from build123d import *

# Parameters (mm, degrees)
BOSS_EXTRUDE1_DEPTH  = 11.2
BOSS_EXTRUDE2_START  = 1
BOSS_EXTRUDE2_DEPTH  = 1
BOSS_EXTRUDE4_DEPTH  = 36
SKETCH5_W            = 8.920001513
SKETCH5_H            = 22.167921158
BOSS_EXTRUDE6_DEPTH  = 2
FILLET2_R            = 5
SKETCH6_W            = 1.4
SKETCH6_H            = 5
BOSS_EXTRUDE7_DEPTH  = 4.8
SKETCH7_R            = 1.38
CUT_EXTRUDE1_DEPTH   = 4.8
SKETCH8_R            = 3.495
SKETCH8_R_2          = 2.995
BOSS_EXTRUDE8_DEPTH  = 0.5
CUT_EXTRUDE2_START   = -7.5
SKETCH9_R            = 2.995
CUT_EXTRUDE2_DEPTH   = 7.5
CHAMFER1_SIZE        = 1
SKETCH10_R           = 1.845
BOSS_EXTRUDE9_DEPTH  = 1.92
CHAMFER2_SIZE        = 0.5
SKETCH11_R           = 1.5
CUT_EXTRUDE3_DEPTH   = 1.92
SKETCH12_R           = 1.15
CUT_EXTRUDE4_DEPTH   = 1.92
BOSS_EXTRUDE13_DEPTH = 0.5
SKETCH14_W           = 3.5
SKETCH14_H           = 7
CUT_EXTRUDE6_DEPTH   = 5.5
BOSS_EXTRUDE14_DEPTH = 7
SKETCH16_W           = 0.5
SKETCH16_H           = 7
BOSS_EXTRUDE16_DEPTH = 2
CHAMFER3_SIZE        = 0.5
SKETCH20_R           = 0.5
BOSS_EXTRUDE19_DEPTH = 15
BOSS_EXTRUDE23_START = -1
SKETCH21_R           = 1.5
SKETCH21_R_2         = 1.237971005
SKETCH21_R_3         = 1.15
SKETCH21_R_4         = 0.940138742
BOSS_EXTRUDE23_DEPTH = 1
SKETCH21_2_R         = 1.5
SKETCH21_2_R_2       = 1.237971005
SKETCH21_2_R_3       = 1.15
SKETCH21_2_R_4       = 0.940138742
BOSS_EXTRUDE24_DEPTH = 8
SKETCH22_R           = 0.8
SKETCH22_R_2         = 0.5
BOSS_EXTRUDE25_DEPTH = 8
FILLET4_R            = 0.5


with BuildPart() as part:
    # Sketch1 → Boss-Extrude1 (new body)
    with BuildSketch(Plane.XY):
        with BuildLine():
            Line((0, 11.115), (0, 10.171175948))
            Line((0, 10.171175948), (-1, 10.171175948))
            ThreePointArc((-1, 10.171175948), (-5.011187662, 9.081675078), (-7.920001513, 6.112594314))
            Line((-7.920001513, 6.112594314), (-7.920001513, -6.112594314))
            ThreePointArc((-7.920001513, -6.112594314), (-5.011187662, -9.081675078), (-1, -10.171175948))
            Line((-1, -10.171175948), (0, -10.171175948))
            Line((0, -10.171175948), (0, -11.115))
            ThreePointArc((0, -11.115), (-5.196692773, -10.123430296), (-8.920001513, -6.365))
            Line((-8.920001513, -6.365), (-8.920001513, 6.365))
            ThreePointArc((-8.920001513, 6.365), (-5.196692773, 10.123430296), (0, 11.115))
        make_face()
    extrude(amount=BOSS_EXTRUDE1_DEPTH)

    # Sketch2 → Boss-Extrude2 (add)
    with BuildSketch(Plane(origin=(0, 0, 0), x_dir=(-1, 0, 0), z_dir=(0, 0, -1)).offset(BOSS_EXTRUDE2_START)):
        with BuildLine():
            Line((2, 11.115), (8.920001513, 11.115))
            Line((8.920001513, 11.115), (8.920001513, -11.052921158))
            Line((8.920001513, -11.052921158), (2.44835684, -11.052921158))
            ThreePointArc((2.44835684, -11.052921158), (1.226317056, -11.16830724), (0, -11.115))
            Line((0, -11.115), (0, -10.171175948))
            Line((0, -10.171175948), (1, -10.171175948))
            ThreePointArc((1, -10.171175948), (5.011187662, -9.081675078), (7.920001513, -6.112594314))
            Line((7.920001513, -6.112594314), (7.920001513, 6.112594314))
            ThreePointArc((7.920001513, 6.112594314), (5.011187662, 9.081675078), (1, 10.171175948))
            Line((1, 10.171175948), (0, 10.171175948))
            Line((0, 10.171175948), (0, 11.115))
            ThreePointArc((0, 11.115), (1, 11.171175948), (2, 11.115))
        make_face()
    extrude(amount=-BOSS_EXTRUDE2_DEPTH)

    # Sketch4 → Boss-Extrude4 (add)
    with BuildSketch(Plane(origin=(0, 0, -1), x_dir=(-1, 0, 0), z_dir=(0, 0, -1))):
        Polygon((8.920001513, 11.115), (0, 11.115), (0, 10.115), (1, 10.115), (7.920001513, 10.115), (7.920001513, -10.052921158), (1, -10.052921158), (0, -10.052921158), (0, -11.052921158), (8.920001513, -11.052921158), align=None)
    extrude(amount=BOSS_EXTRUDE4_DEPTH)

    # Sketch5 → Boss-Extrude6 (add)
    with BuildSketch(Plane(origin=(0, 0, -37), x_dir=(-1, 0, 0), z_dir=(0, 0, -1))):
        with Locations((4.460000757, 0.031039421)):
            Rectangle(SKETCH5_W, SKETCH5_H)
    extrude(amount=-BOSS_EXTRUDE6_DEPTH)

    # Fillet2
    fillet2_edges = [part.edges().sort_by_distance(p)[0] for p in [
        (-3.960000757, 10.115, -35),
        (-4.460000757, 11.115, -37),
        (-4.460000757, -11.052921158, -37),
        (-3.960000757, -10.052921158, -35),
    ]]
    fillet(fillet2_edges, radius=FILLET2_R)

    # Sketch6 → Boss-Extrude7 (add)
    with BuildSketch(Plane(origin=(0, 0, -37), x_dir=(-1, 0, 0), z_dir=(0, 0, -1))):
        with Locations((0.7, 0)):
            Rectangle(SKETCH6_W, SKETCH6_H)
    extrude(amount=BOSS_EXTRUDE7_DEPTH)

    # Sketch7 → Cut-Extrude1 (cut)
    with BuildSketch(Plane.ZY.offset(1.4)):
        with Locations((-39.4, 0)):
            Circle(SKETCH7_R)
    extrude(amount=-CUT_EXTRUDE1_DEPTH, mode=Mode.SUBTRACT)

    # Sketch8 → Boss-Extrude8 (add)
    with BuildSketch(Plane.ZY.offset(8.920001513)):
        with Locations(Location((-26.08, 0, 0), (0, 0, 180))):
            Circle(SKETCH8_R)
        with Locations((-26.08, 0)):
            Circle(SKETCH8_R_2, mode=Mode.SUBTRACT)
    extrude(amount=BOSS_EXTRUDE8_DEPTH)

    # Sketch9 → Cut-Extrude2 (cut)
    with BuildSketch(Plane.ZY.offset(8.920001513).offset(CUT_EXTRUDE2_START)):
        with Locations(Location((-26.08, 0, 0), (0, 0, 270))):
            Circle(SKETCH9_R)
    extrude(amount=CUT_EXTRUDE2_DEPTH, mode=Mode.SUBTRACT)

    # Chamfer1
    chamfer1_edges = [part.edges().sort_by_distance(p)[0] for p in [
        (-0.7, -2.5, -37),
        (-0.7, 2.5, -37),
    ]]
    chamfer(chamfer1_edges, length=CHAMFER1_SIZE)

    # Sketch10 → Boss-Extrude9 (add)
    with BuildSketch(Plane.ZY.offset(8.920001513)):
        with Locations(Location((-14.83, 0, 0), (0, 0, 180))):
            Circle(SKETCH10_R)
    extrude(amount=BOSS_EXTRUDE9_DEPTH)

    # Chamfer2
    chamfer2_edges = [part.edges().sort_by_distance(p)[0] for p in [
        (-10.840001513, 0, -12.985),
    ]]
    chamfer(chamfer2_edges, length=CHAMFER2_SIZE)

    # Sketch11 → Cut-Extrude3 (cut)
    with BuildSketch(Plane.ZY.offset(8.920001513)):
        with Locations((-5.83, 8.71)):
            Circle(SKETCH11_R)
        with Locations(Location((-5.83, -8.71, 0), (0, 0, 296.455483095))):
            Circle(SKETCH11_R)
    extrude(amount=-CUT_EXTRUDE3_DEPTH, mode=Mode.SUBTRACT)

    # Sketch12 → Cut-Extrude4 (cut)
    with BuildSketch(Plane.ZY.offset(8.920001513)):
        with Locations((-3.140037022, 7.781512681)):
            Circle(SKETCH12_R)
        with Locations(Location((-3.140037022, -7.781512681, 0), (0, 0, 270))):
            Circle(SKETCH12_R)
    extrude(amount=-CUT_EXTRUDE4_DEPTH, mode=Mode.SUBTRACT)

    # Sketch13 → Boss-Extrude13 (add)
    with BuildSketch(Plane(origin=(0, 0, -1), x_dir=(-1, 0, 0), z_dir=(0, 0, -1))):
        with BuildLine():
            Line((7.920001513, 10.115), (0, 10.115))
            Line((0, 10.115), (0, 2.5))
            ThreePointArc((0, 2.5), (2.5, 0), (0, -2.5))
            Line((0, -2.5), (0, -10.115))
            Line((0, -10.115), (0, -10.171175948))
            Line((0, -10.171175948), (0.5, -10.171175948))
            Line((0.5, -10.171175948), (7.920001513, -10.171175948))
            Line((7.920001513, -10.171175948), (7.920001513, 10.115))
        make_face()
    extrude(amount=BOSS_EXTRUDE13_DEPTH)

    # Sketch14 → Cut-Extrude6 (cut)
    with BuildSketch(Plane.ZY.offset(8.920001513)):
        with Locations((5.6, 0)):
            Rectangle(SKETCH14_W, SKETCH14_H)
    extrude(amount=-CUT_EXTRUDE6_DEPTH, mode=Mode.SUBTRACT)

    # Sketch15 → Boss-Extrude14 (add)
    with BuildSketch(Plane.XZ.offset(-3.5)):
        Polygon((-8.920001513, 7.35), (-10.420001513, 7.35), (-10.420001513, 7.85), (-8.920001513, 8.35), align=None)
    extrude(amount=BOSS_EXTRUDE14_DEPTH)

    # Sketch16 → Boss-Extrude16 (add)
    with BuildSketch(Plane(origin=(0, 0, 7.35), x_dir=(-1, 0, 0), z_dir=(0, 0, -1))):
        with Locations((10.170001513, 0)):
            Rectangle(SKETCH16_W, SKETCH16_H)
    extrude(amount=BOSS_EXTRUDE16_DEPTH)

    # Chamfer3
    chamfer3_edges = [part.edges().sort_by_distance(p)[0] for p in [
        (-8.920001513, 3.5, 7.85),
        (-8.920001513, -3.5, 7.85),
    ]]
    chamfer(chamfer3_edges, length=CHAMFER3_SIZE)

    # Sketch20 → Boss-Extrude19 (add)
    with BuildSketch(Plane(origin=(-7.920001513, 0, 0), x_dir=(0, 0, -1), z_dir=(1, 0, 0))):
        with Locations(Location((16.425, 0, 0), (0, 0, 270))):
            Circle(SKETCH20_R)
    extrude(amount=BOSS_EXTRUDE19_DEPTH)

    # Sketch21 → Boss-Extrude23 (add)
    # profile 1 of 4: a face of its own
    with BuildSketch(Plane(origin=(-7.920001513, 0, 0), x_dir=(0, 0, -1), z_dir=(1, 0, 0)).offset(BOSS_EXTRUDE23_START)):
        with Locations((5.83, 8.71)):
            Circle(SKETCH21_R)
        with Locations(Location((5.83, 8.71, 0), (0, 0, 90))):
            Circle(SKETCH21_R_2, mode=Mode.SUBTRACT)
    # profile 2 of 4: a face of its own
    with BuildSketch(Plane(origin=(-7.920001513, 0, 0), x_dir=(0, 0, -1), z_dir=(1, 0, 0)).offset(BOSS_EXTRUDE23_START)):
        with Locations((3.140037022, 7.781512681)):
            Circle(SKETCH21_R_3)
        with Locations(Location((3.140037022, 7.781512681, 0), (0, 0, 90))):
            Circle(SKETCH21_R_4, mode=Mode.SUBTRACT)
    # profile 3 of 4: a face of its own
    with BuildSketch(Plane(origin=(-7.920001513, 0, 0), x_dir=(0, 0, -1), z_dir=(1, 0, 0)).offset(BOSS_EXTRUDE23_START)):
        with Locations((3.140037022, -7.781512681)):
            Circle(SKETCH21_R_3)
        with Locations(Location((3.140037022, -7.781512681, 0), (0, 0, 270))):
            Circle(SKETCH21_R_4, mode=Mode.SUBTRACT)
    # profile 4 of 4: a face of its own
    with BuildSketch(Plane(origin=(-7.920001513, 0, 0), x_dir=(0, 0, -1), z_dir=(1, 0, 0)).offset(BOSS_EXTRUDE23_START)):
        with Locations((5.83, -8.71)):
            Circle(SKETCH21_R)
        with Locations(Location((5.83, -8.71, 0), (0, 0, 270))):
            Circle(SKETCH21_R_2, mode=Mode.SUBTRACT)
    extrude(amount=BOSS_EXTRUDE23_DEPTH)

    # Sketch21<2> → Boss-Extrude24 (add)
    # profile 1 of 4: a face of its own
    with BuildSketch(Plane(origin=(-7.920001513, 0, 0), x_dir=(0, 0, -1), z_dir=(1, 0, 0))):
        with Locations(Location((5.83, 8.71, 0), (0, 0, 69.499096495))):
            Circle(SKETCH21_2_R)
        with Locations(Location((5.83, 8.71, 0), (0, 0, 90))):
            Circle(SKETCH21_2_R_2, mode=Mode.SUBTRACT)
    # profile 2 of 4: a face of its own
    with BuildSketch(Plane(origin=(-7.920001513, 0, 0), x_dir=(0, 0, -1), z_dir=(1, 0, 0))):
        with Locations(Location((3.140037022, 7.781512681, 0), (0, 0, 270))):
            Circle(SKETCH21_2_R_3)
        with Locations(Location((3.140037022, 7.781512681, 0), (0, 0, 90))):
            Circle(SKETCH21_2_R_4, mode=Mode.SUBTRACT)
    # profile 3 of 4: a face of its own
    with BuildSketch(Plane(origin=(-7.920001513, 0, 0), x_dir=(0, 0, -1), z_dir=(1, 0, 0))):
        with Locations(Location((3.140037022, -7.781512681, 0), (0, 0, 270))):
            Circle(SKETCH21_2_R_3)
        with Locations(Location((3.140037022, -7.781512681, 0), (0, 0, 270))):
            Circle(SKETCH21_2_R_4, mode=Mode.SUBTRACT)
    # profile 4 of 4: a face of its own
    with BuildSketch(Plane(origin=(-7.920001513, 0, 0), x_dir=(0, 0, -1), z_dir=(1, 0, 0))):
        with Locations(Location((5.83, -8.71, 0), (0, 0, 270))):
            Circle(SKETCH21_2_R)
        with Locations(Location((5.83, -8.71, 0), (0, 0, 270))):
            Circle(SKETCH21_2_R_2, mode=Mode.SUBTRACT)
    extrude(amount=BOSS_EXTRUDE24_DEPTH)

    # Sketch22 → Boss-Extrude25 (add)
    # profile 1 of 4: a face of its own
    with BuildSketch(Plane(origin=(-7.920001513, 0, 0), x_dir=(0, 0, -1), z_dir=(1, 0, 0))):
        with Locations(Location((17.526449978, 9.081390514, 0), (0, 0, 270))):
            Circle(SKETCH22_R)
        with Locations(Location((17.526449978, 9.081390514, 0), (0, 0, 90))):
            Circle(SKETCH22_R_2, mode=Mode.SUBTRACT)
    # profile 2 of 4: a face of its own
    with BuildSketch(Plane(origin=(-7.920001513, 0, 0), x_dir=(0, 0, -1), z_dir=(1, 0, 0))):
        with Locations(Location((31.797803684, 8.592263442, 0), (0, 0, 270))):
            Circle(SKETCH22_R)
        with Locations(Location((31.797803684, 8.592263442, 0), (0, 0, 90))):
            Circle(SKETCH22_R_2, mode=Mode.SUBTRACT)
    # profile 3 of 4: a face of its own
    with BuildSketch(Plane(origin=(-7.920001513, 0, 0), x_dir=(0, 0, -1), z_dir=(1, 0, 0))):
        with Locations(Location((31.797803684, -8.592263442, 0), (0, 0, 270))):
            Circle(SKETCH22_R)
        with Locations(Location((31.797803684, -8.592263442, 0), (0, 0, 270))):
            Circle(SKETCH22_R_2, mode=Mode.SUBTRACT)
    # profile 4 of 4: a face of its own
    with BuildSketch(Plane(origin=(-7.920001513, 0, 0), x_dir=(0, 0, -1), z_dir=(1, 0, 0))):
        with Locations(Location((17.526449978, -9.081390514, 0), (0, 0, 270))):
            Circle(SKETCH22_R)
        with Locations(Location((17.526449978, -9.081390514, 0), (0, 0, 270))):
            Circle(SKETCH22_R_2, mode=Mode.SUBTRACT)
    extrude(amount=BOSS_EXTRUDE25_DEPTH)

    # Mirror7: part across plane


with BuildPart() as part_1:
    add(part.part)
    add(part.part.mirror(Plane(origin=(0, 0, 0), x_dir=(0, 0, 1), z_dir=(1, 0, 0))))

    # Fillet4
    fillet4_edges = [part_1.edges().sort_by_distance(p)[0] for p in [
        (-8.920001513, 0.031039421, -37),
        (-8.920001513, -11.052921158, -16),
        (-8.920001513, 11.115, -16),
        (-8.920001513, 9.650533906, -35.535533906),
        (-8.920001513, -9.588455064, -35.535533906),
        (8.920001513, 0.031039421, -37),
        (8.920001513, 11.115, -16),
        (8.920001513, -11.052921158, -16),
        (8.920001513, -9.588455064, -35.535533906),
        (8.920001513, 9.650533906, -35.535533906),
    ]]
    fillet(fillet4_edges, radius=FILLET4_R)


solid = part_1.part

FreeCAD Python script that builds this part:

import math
import FreeCAD as App
import Part
import Sketcher


def edges_at(feature, points):
    """Names of the edges that pass closest to the given points."""
    edges = feature.Shape.Edges
    near = lambda p: min(range(len(edges)), key=lambda i: edges[i].distToShape(Part.Vertex(*p))[0])
    return sorted({f"Edge{near(p) + 1}" for p in points})


def add_polygon(sketch, points):
    """Adds a closed chain of lines whose ends are joined by coincident constraints."""
    first, n = sketch.GeometryCount, len(points)
    for a, b in zip(points, points[1:] + points[:1]):
        sketch.addGeometry(Part.LineSegment(App.Vector(*a, 0), App.Vector(*b, 0)), False)
    for i in range(n):
        sketch.addConstraint(Sketcher.Constraint("Coincident", first + i, 2, first + (i + 1) % n, 1))

doc = App.newDocument("Part")
body = doc.addObject("PartDesign::Body", "Body")

# Sketch on XY plane
sketch1 = body.newObject("Sketcher::SketchObject", "Sketch")
sketch1.AttachmentSupport = (doc.getObject("XY_Plane"), [""])
sketch1.MapMode = "FlatFace"
sketch1.addGeometry([
    Part.LineSegment(App.Vector(0, 10.171176, 0), App.Vector(0, 11.115, 0)),  # 0
    Part.ArcOfCircle(Part.Circle(App.Vector(-1, 2.242482, 0), App.Vector(0, 0, 1), 8.928694), math.radians(83.569469), math.radians(152.502126)),  # 1
    Part.LineSegment(App.Vector(-8.920002, 6.365, 0), App.Vector(-8.920002, -6.365, 0)),  # 2
    Part.ArcOfCircle(Part.Circle(App.Vector(-1, -2.242482, 0), App.Vector(0, 0, 1), 8.928694), math.radians(-152.502126), math.radians(-83.569469)),  # 3
    Part.LineSegment(App.Vector(0, -11.115, 0), App.Vector(0, -10.171176, 0)),  # 4
    Part.LineSegment(App.Vector(0, -10.171176, 0), App.Vector(-1, -10.171176, 0)),  # 5
    Part.ArcOfCircle(Part.Circle(App.Vector(-1, -2.242482, 0), App.Vector(0, 0, 1), 7.928694), math.radians(-150.783255), math.radians(-90)),  # 6
    Part.LineSegment(App.Vector(-7.920002, -6.112594, 0), App.Vector(-7.920002, 6.112594, 0)),  # 7
    Part.ArcOfCircle(Part.Circle(App.Vector(-1, 2.242482, 0), App.Vector(0, 0, 1), 7.928694), math.radians(90), math.radians(150.783255)),  # 8
    Part.LineSegment(App.Vector(-1, 10.171176, 0), App.Vector(0, 10.171176, 0)),  # 9
], False)
sketch1.addConstraint([
    Sketcher.Constraint("Coincident", 0, 2, 1, 1),
    Sketcher.Constraint("Coincident", 1, 2, 2, 1),
    Sketcher.Constraint("Coincident", 2, 2, 3, 1),
    Sketcher.Constraint("Coincident", 3, 2, 4, 1),
    Sketcher.Constraint("Coincident", 4, 2, 5, 1),
    Sketcher.Constraint("Tangent", 5, 2, 6, 2),
    Sketcher.Constraint("Coincident", 6, 1, 7, 1),
    Sketcher.Constraint("Coincident", 7, 2, 8, 2),
    Sketcher.Constraint("Tangent", 8, 1, 9, 1),
    Sketcher.Constraint("Coincident", 9, 2, 0, 1),
    Sketcher.Constraint("Vertical", 0),
    Sketcher.Constraint("Vertical", 2),
    Sketcher.Constraint("Vertical", 4),
    Sketcher.Constraint("Horizontal", 5),
    Sketcher.Constraint("Vertical", 7),
    Sketcher.Constraint("Horizontal", 9),
    Sketcher.Constraint("Coincident", 6, 3, 3, 3),
    Sketcher.Constraint("Coincident", 8, 3, 1, 3),
    Sketcher.Constraint("Equal", 1, 3),
    Sketcher.Constraint("Equal", 6, 8),
    Sketcher.Constraint("Symmetric", 0, 2, 3, 2, -1, 1),
    Sketcher.Constraint("Symmetric", 1, 3, 3, 3, -1),
    Sketcher.Constraint("DistanceX", 5, 2, 5, 1, 1.0),
    Sketcher.Constraint("DistanceX", 2, 2, 6, 1, 1.0),
    Sketcher.Constraint("DistanceY", 2, 2, 2, 1, 12.73),
    Sketcher.Constraint("DistanceX", 1, 2, -1, 1, 8.920002),
    Sketcher.Constraint("DistanceY", 1, 2, 0, 2, 4.75),
    Sketcher.Constraint("Radius", 6, 7.928694),
])
pad1 = body.newObject("PartDesign::Pad", "Pad")
pad1.Profile = sketch1
pad1.Length = 11.2

# Sketch on XY plane
sketch2 = body.newObject("Sketcher::SketchObject", "Sketch001")
sketch2.AttachmentSupport = (doc.getObject("XY_Plane"), [""])
sketch2.MapMode = "FlatFace"
sketch2.AttachmentOffset = App.Placement(App.Vector(0, 0, -1), App.Rotation())
sketch2.addGeometry([
    Part.LineSegment(App.Vector(-8.920002, 11.115, 0), App.Vector(-2, 11.115, 0)),  # 0
    Part.ArcOfCircle(Part.Circle(App.Vector(-1, 2.242482, 0), App.Vector(0, 0, 1), 8.928694), math.radians(83.569469), math.radians(96.430531)),  # 1
    Part.LineSegment(App.Vector(0, 11.115, 0), App.Vector(0, 10.171176, 0)),  # 2
    Part.LineSegment(App.Vector(0, 10.171176, 0), App.Vector(-1, 10.171176, 0)),  # 3
    Part.ArcOfCircle(Part.Circle(App.Vector(-1, 2.242482, 0), App.Vector(0, 0, 1), 7.928694), math.radians(90), math.radians(150.783255)),  # 4
    Part.LineSegment(App.Vector(-7.920002, 6.112594, 0), App.Vector(-7.920002, -6.112594, 0)),  # 5
    Part.ArcOfCircle(Part.Circle(App.Vector(-1, -2.242482, 0), App.Vector(0, 0, 1), 7.928694), math.radians(-150.783255), math.radians(-90)),  # 6
    Part.LineSegment(App.Vector(-1, -10.171176, 0), App.Vector(0, -10.171176, 0)),  # 7
    Part.LineSegment(App.Vector(0, -10.171176, 0), App.Vector(0, -11.115, 0)),  # 8
    Part.ArcOfCircle(Part.Circle(App.Vector(-1, -2.242482, 0), App.Vector(0, 0, 1), 8.928694), math.radians(-99.335413), math.radians(-83.569469)),  # 9
    Part.LineSegment(App.Vector(-2.448357, -11.052921, 0), App.Vector(-8.920002, -11.052921, 0)),  # 10
    Part.LineSegment(App.Vector(-8.920002, -11.052921, 0), App.Vector(-8.920002, 11.115, 0)),  # 11
], False)
sketch2.addConstraint([
    Sketcher.Constraint("Coincident", 0, 2, 1, 2),
    Sketcher.Constraint("Coincident", 1, 1, 2, 1),
    Sketcher.Constraint("Coincident", 2, 2, 3, 1),
    Sketcher.Constraint("Tangent", 3, 2, 4, 1),
    Sketcher.Constraint("Coincident", 4, 2, 5, 1),
    Sketcher.Constraint("Coincident", 5, 2, 6, 1),
    Sketcher.Constraint("Tangent", 6, 2, 7, 1),
    Sketcher.Constraint("Coincident", 7, 2, 8, 1),
    Sketcher.Constraint("Coincident", 8, 2, 9, 2),
    Sketcher.Constraint("Coincident", 9, 1, 10, 1),
    Sketcher.Constraint("Coincident", 10, 2, 11, 1),
    Sketcher.Constraint("Coincident", 11, 2, 0, 1),
    Sketcher.Constraint("Horizontal", 0),
    Sketcher.Constraint("Vertical", 2),
    Sketcher.Constraint("Horizontal", 3),
    Sketcher.Constraint("Vertical", 5),
    Sketcher.Constraint("Horizontal", 7),
    Sketcher.Constraint("Vertical", 8),
    Sketcher.Constraint("Horizontal", 10),
    Sketcher.Constraint("Vertical", 11),
    Sketcher.Constraint("Coincident", 4, 3, 1, 3),
    Sketcher.Constraint("Coincident", 9, 3, 6, 3),
    Sketcher.Constraint("Equal", 4, 6),
    Sketcher.Constraint("Equal", 1, 9),
    Sketcher.Constraint("Symmetric", 2, 2, 7, 2, -1, 1),
    Sketcher.Constraint("Symmetric", 1, 1, 8, 2, -1),
    Sketcher.Constraint("Horizontal", 0, 2, 1, 1),
    Sketcher.Constraint("DistanceX", 3, 2, 3, 1, 1.0),
    Sketcher.Constraint("DistanceX", 10, 2, 5, 2, 1.0),
    Sketcher.Constraint("DistanceX", 0, 1, 0, 2, 6.920002),
    Sketcher.Constraint("DistanceY", -1, 1, 0, 2, 11.115),
    Sketcher.Constraint("Radius", 1, 8.928694),
    Sketcher.Constraint("Radius", 4, 7.928694),
    Sketcher.Constraint("DistanceY", 11, 1, 11, 2, 22.167921),
])
pad2 = body.newObject("PartDesign::Pad", "Pad001")
pad2.Profile = sketch2
pad2.Length = 1

# Sketch on XY plane
sketch3 = body.newObject("Sketcher::SketchObject", "Sketch002")
sketch3.AttachmentSupport = (doc.getObject("XY_Plane"), [""])
sketch3.MapMode = "FlatFace"
sketch3.AttachmentOffset = App.Placement(App.Vector(0, 0, -1), App.Rotation())
add_polygon(sketch3, [(-8.920002, 11.115), (0, 11.115), (0, 10.115), (-7.920002, 10.115), (-7.920002, -10.052921), (0, -10.052921), (0, -11.052921), (-8.920002, -11.052921)])  # lines 0-7
sketch3.addConstraint([
    Sketcher.Constraint("Horizontal", 0),
    Sketcher.Constraint("Vertical", 1),
    Sketcher.Constraint("Horizontal", 2),
    Sketcher.Constraint("Vertical", 3),
    Sketcher.Constraint("Horizontal", 4),
    Sketcher.Constraint("Vertical", 5),
    Sketcher.Constraint("Horizontal", 6),
    Sketcher.Constraint("Vertical", 7),
    Sketcher.Constraint("PointOnObject", 0, 2, -2),
    Sketcher.Constraint("PointOnObject", 4, 2, -2),
    Sketcher.Constraint("Equal", 1, 5),
    Sketcher.Constraint("DistanceY", 1, 2, 1, 1, 1.0),
    Sketcher.Constraint("DistanceX", 6, 2, 3, 2, 1.0),
    Sketcher.Constraint("DistanceX", 0, 1, 0, 2, 8.920002),
    Sketcher.Constraint("DistanceY", -1, 1, 0, 2, 11.115),
    Sketcher.Constraint("DistanceY", 3, 2, 3, 1, 20.167921),
])
pad3 = body.newObject("PartDesign::Pad", "Pad002")
pad3.Profile = sketch3
pad3.Length = 36
pad3.Reversed = True

# Sketch on XY plane
sketch4 = body.newObject("Sketcher::SketchObject", "Sketch003")
sketch4.AttachmentSupport = (doc.getObject("XY_Plane"), [""])
sketch4.MapMode = "FlatFace"
sketch4.AttachmentOffset = App.Placement(App.Vector(0, 0, -37), App.Rotation())
add_polygon(sketch4, [(0, 11.115), (0, -11.052921), (-8.920002, -11.052921), (-8.920002, 11.115)])  # lines 0-3
sketch4.addConstraint([
    Sketcher.Constraint("Vertical", 0),
    Sketcher.Constraint("Horizontal", 1),
    Sketcher.Constraint("Vertical", 2),
    Sketcher.Constraint("Horizontal", 3),
    Sketcher.Constraint("PointOnObject", 0, 2, -2),
    Sketcher.Constraint("DistanceX", 1, 2, 1, 1, 8.920002),
    Sketcher.Constraint("DistanceY", -1, 1, 2, 2, 11.115),
    Sketcher.Constraint("DistanceY", 0, 2, 0, 1, 22.167921),
])
pad4 = body.newObject("PartDesign::Pad", "Pad003")
pad4.Profile = sketch4
pad4.Length = 2
doc.recompute()

fillet = body.newObject("PartDesign::Fillet", "Fillet")
fillet.Base = (pad4, edges_at(pad4, [
    (-3.96, 10.115, -35),
    (-4.46, 11.115, -37),
    (-4.46, -11.053, -37),
    (-3.96, -10.053, -35),
]))
fillet.Radius = 5

# Sketch on XY plane
sketch5 = body.newObject("Sketcher::SketchObject", "Sketch004")
sketch5.AttachmentSupport = (doc.getObject("XY_Plane"), [""])
sketch5.MapMode = "FlatFace"
sketch5.AttachmentOffset = App.Placement(App.Vector(0, 0, -37), App.Rotation())
add_polygon(sketch5, [(0, 2.5), (0, -2.5), (-1.4, -2.5), (-1.4, 2.5)])  # lines 0-3
sketch5.addConstraint([
    Sketcher.Constraint("Vertical", 0),
    Sketcher.Constraint("Horizontal", 1),
    Sketcher.Constraint("Vertical", 2),
    Sketcher.Constraint("Horizontal", 3),
    Sketcher.Constraint("Symmetric", 0, 2, 3, 2, -1, 1),
    Sketcher.Constraint("DistanceY", 0, 2, 0, 1, 5.0),
    Sketcher.Constraint("DistanceX", 1, 2, 1, 1, 1.4),
])
pad5 = body.newObject("PartDesign::Pad", "Pad004")
pad5.Profile = sketch5
pad5.Length = 4.8
pad5.Reversed = True

# Sketch on YZ plane
sketch6 = body.newObject("Sketcher::SketchObject", "Sketch005")
sketch6.AttachmentSupport = (doc.getObject("YZ_Plane"), [""])
sketch6.MapMode = "FlatFace"
sketch6.AttachmentOffset = App.Placement(App.Vector(0, 0, -1.4), App.Rotation())
sketch6.addGeometry(Part.Circle(App.Vector(0, -39.4, 0), App.Vector(0, 0, 1), 1.38), False)
sketch6.addConstraint([
    Sketcher.Constraint("PointOnObject", 0, 3, -2),
    Sketcher.Constraint("Diameter", 0, 2.76),
    Sketcher.Constraint("DistanceY", 0, 3, -1, 1, 39.4),
])
pocket1 = body.newObject("PartDesign::Pocket", "Pocket")
pocket1.Profile = sketch6
pocket1.Length = 4.8
pocket1.Reversed = True

# Sketch on YZ plane
sketch7 = body.newObject("Sketcher::SketchObject", "Sketch006")
sketch7.AttachmentSupport = (doc.getObject("YZ_Plane"), [""])
sketch7.MapMode = "FlatFace"
sketch7.AttachmentOffset = App.Placement(App.Vector(0, 0, -8.920002), App.Rotation())
sketch7.addGeometry([
    Part.Circle(App.Vector(0, -26.08, 0), App.Vector(0, 0, 1), 3.495),
    Part.Circle(App.Vector(0, -26.08, 0), App.Vector(0, 0, 1), 2.995),
], False)
sketch7.addConstraint([
    Sketcher.Constraint("Coincident", 1, 3, 0, 3),
    Sketcher.Constraint("PointOnObject", 0, 3, -2),
    Sketcher.Constraint("Diameter", 0, 6.99),
    Sketcher.Constraint("Diameter", 1, 5.99),
    Sketcher.Constraint("DistanceY", 0, 3, -1, 1, 26.08),
])
pad6 = body.newObject("PartDesign::Pad", "Pad005")
pad6.Profile = sketch7
pad6.Length = 0.5
pad6.Reversed = True

# Sketch on YZ plane
sketch8 = body.newObject("Sketcher::SketchObject", "Sketch007")
sketch8.AttachmentSupport = (doc.getObject("YZ_Plane"), [""])
sketch8.MapMode = "FlatFace"
sketch8.AttachmentOffset = App.Placement(App.Vector(0, 0, -1.420002), App.Rotation())
sketch8.addGeometry(Part.Circle(App.Vector(0, -26.08, 0), App.Vector(0, 0, 1), 2.995), False)
sketch8.addConstraint([
    Sketcher.Constraint("PointOnObject", 0, 3, -2),
    Sketcher.Constraint("Diameter", 0, 5.99),
    Sketcher.Constraint("DistanceY", 0, 3, -1, 1, 26.08),
])
pocket2 = body.newObject("PartDesign::Pocket", "Pocket001")
pocket2.Profile = sketch8
pocket2.Length = 7.5
doc.recompute()

chamfer = body.newObject("PartDesign::Chamfer", "Chamfer")
chamfer.Base = (pocket2, edges_at(pocket2, [(-0.7, -2.5, -37), (-0.7, 2.5, -37)]))
chamfer.Size = 1

# Sketch on YZ plane
sketch9 = body.newObject("Sketcher::SketchObject", "Sketch008")
sketch9.AttachmentSupport = (doc.getObject("YZ_Plane"), [""])
sketch9.MapMode = "FlatFace"
sketch9.AttachmentOffset = App.Placement(App.Vector(0, 0, -8.920002), App.Rotation())
sketch9.addGeometry(Part.Circle(App.Vector(0, -14.83, 0), App.Vector(0, 0, 1), 1.845), False)
sketch9.addConstraint([
    Sketcher.Constraint("PointOnObject", 0, 3, -2),
    Sketcher.Constraint("Diameter", 0, 3.69),
    Sketcher.Constraint("DistanceY", 0, 3, -1, 1, 14.83),
])
pad7 = body.newObject("PartDesign::Pad", "Pad006")
pad7.Profile = sketch9
pad7.Length = 1.92
pad7.Reversed = True
doc.recompute()

chamfer2 = body.newObject("PartDesign::Chamfer", "Chamfer001")
chamfer2.Base = (pad7, edges_at(pad7, [(-10.84, 0, -12.985)]))
chamfer2.Size = 0.5

# Sketch on YZ plane
sketch10 = body.newObject("Sketcher::SketchObject", "Sketch009")
sketch10.AttachmentSupport = (doc.getObject("YZ_Plane"), [""])
sketch10.MapMode = "FlatFace"
sketch10.AttachmentOffset = App.Placement(App.Vector(0, 0, -8.920002), App.Rotation())
sketch10.addGeometry([
    Part.Circle(App.Vector(8.71, -5.83, 0), App.Vector(0, 0, 1), 1.5),
    Part.Circle(App.Vector(-8.71, -5.83, 0), App.Vector(0, 0, 1), 1.5),
], False)
sketch10.addConstraint([
    Sketcher.Constraint("Equal", 0, 1),
    Sketcher.Constraint("Symmetric", 0, 3, 1, 3, -2),
    Sketcher.Constraint("Diameter", 0, 3.0),
    Sketcher.Constraint("DistanceX", -1, 1, 0, 3, 8.71),
    Sketcher.Constraint("DistanceY", 0, 3, -1, 1, 5.83),
])
pocket3 = body.newObject("PartDesign::Pocket", "Pocket002")
pocket3.Profile = sketch10
pocket3.Length = 1.92
pocket3.Reversed = True

# Sketch on YZ plane
sketch11 = body.newObject("Sketcher::SketchObject", "Sketch010")
sketch11.AttachmentSupport = (doc.getObject("YZ_Plane"), [""])
sketch11.MapMode = "FlatFace"
sketch11.AttachmentOffset = App.Placement(App.Vector(0, 0, -8.920002), App.Rotation())
sketch11.addGeometry([
    Part.Circle(App.Vector(7.781513, -3.140037, 0), App.Vector(0, 0, 1), 1.15),
    Part.Circle(App.Vector(-7.781513, -3.140037, 0), App.Vector(0, 0, 1), 1.15),
], False)
sketch11.addConstraint([
    Sketcher.Constraint("Equal", 0, 1),
    Sketcher.Constraint("Symmetric", 0, 3, 1, 3, -2),
    Sketcher.Constraint("Diameter", 0, 2.3),
    Sketcher.Constraint("DistanceX", -1, 1, 0, 3, 7.781513),
    Sketcher.Constraint("DistanceY", 0, 3, -1, 1, 3.140037),
])
pocket4 = body.newObject("PartDesign::Pocket", "Pocket003")
pocket4.Profile = sketch11
pocket4.Length = 1.92
pocket4.Reversed = True

# Sketch on XY plane
sketch12 = body.newObject("Sketcher::SketchObject", "Sketch011")
sketch12.AttachmentSupport = (doc.getObject("XY_Plane"), [""])
sketch12.MapMode = "FlatFace"
sketch12.AttachmentOffset = App.Placement(App.Vector(0, 0, -1), App.Rotation())
sketch12.addGeometry([
    Part.LineSegment(App.Vector(-7.920002, 10.115, 0), App.Vector(0, 10.115, 0)),  # 0
    Part.LineSegment(App.Vector(0, 10.115, 0), App.Vector(0, 2.5, 0)),  # 1
    Part.ArcOfCircle(Part.Circle(App.Vector(0, 0, 0), App.Vector(0, 0, 1), 2.5), math.radians(90), math.radians(270)),  # 2
    Part.LineSegment(App.Vector(0, -2.5, 0), App.Vector(0, -10.171176, 0)),  # 3
    Part.LineSegment(App.Vector(0, -10.171176, 0), App.Vector(-7.920002, -10.171176, 0)),  # 4
    Part.LineSegment(App.Vector(-7.920002, -10.171176, 0), App.Vector(-7.920002, 10.115, 0)),  # 5
], False)
sketch12.addConstraint([
    Sketcher.Constraint("Coincident", 0, 2, 1, 1),
    Sketcher.Constraint("Coincident", 1, 2, 2, 1),
    Sketcher.Constraint("Coincident", 2, 2, 3, 1),
    Sketcher.Constraint("Coincident", 3, 2, 4, 1),
    Sketcher.Constraint("Coincident", 4, 2, 5, 1),
    Sketcher.Constraint("Coincident", 5, 2, 0, 1),
    Sketcher.Constraint("Horizontal", 0),
    Sketcher.Constraint("Vertical", 1),
    Sketcher.Constraint("Vertical", 3),
    Sketcher.Constraint("Horizontal", 4),
    Sketcher.Constraint("Vertical", 5),
    Sketcher.Constraint("Coincident", 2, 3, -1, 1),
    Sketcher.Constraint("PointOnObject", 0, 2, -2),
    Sketcher.Constraint("PointOnObject", 2, 2, -2),
    Sketcher.Constraint("Radius", 2, 2.5),
    Sketcher.Constraint("DistanceX", 0, 1, 0, 2, 7.920002),
    Sketcher.Constraint("DistanceY", 1, 2, 1, 1, 7.615),
    Sketcher.Constraint("DistanceY", 3, 2, 3, 1, 7.671176),
])
pad8 = body.newObject("PartDesign::Pad", "Pad007")
pad8.Profile = sketch12
pad8.Length = 0.5
pad8.Reversed = True

# Sketch on YZ plane
sketch13 = body.newObject("Sketcher::SketchObject", "Sketch012")
sketch13.AttachmentSupport = (doc.getObject("YZ_Plane"), [""])
sketch13.MapMode = "FlatFace"
sketch13.AttachmentOffset = App.Placement(App.Vector(0, 0, -8.920002), App.Rotation())
add_polygon(sketch13, [(3.5, 3.85), (-3.5, 3.85), (-3.5, 7.35), (3.5, 7.35)])  # lines 0-3
sketch13.addConstraint([
    Sketcher.Constraint("Horizontal", 0),
    Sketcher.Constraint("Vertical", 1),
    Sketcher.Constraint("Horizontal", 2),
    Sketcher.Constraint("Vertical", 3),
    Sketcher.Constraint("DistanceX", 0, 2, 0, 1, 7.0),
    Sketcher.Constraint("DistanceY", 1, 1, 1, 2, 3.5),
    Sketcher.Constraint("DistanceX", 0, 2, -1, 1, 3.5),
    Sketcher.Constraint("DistanceY", -1, 1, 0, 2, 3.85),
])
pocket5 = body.newObject("PartDesign::Pocket", "Pocket004")
pocket5.Profile = sketch13
pocket5.Length = 5.5
pocket5.Reversed = True

# Sketch on XZ plane
sketch14 = body.newObject("Sketcher::SketchObject", "Sketch013")
sketch14.AttachmentSupport = (doc.getObject("XZ_Plane"), [""])
sketch14.MapMode = "FlatFace"
sketch14.AttachmentOffset = App.Placement(App.Vector(0, 0, -3.5), App.Rotation())
add_polygon(sketch14, [(-10.420002, 7.35), (-8.920002, 7.35), (-8.920002, 8.35), (-10.420002, 7.85)])  # lines 0-3
sketch14.addConstraint([
    Sketcher.Constraint("Horizontal", 0),
    Sketcher.Constraint("Vertical", 1),
    Sketcher.Constraint("Vertical", 3),
    Sketcher.Constraint("DistanceY", 1, 1, 1, 2, 1.0),
    Sketcher.Constraint("DistanceX", 0, 1, 0, 2, 1.5),
    Sketcher.Constraint("DistanceY", 3, 2, 3, 1, 0.5),
    Sketcher.Constraint("DistanceX", 0, 2, -1, 1, 8.920002),
    Sketcher.Constraint("DistanceY", -1, 1, 0, 2, 7.35),
])
pad9 = body.newObject("PartDesign::Pad", "Pad008")
pad9.Profile = sketch14
pad9.Length = 7

# Sketch on XY plane
sketch15 = body.newObject("Sketcher::SketchObject", "Sketch014")
sketch15.AttachmentSupport = (doc.getObject("XY_Plane"), [""])
sketch15.MapMode = "FlatFace"
sketch15.AttachmentOffset = App.Placement(App.Vector(0, 0, 7.35), App.Rotation())
add_polygon(sketch15, [(-9.920002, 3.5), (-9.920002, -3.5), (-10.420002, -3.5), (-10.420002, 3.5)])  # lines 0-3
sketch15.addConstraint([
    Sketcher.Constraint("Vertical", 0),
    Sketcher.Constraint("Horizontal", 1),
    Sketcher.Constraint("Vertical", 2),
    Sketcher.Constraint("Horizontal", 3),
    Sketcher.Constraint("DistanceY", 0, 2, 0, 1, 7.0),
    Sketcher.Constraint("DistanceX", 1, 2, 1, 1, 0.5),
    Sketcher.Constraint("DistanceY", 0, 2, -1, 1, 3.5),
    Sketcher.Constraint("DistanceX", 0, 2, -1, 1, 9.920002),
])
pad10 = body.newObject("PartDesign::Pad", "Pad009")
pad10.Profile = sketch15
pad10.Length = 2
pad10.Reversed = True
doc.recompute()

chamfer3 = body.newObject("PartDesign::Chamfer", "Chamfer002")
chamfer3.Base = (pad10, edges_at(pad10, [(-8.92, 3.5, 7.85), (-8.92, -3.5, 7.85)]))
chamfer3.Size = 0.5

# Sketch on YZ plane
sketch16 = body.newObject("Sketcher::SketchObject", "Sketch015")
sketch16.AttachmentSupport = (doc.getObject("YZ_Plane"), [""])
sketch16.MapMode = "FlatFace"
sketch16.AttachmentOffset = App.Placement(App.Vector(0, 0, -7.920002), App.Rotation())
sketch16.addGeometry(Part.Circle(App.Vector(0, -16.425, 0), App.Vector(0, 0, 1), 0.5), False)
sketch16.addConstraint([
    Sketcher.Constraint("PointOnObject", 0, 3, -2),
    Sketcher.Constraint("Diameter", 0, 1.0),
    Sketcher.Constraint("DistanceY", 0, 3, -1, 1, 16.425),
])
pad11 = body.newObject("PartDesign::Pad", "Pad010")
pad11.Profile = sketch16
pad11.Length = 15

# Sketch on YZ plane
sketch17 = body.newObject("Sketcher::SketchObject", "Sketch016")
sketch17.AttachmentSupport = (doc.getObject("YZ_Plane"), [""])
sketch17.MapMode = "FlatFace"
sketch17.AttachmentOffset = App.Placement(App.Vector(0, 0, -8.920002), App.Rotation())
sketch17.addGeometry([
    Part.Circle(App.Vector(8.71, -5.83, 0), App.Vector(0, 0, 1), 1.5),  # 0
    Part.Circle(App.Vector(8.71, -5.83, 0), App.Vector(0, 0, 1), 1.237971),  # 1
    Part.Circle(App.Vector(7.781513, -3.140037, 0), App.Vector(0, 0, 1), 1.15),  # 2
    Part.Circle(App.Vector(7.781513, -3.140037, 0), App.Vector(0, 0, 1), 0.940139),  # 3
    Part.Circle(App.Vector(-7.781513, -3.140037, 0), App.Vector(0, 0, 1), 1.15),  # 4
    Part.Circle(App.Vector(-7.781513, -3.140037, 0), App.Vector(0, 0, 1), 0.940139),  # 5
    Part.Circle(App.Vector(-8.71, -5.83, 0), App.Vector(0, 0, 1), 1.5),  # 6
    Part.Circle(App.Vector(-8.71, -5.83, 0), App.Vector(0, 0, 1), 1.237971),  # 7
], False)
sketch17.addConstraint([
    Sketcher.Constraint("Coincident", 1, 3, 0, 3),
    Sketcher.Constraint("Coincident", 3, 3, 2, 3),
    Sketcher.Constraint("Coincident", 5, 3, 4, 3),
    Sketcher.Constraint("Coincident", 7, 3, 6, 3),
    Sketcher.Constraint("Equal", 2, 4),
    Sketcher.Constraint("Equal", 3, 5),
    Sketcher.Constraint("Equal", 0, 6),
    Sketcher.Constraint("Equal", 1, 7),
    Sketcher.Constraint("Symmetric", 2, 3, 4, 3, -2),
    Sketcher.Constraint("Symmetric", 0, 3, 6, 3, -2),
    Sketcher.Constraint("Diameter", 0, 3.0),
    Sketcher.Constraint("Diameter", 2, 2.3),
    Sketcher.Constraint("DistanceX", -1, 1, 0, 3, 8.71),
    Sketcher.Constraint("DistanceY", 0, 3, -1, 1, 5.83),
    Sketcher.Constraint("Diameter", 1, 2.475942),
    Sketcher.Constraint("Diameter", 3, 1.880277),
    Sketcher.Constraint("DistanceX", -1, 1, 2, 3, 7.781513),
    Sketcher.Constraint("DistanceY", 2, 3, -1, 1, 3.140037),
])
pad12 = body.newObject("PartDesign::Pad", "Pad011")
pad12.Profile = sketch17
pad12.Length = 1

# Sketch on YZ plane
sketch18 = body.newObject("Sketcher::SketchObject", "Sketch017")
sketch18.AttachmentSupport = (doc.getObject("YZ_Plane"), [""])
sketch18.MapMode = "FlatFace"
sketch18.AttachmentOffset = App.Placement(App.Vector(0, 0, -7.920002), App.Rotation())
sketch18.addGeometry([
    Part.Circle(App.Vector(8.71, -5.83, 0), App.Vector(0, 0, 1), 1.5),  # 0
    Part.Circle(App.Vector(8.71, -5.83, 0), App.Vector(0, 0, 1), 1.237971),  # 1
    Part.Circle(App.Vector(7.781513, -3.140037, 0), App.Vector(0, 0, 1), 1.15),  # 2
    Part.Circle(App.Vector(7.781513, -3.140037, 0), App.Vector(0, 0, 1), 0.940139),  # 3
    Part.Circle(App.Vector(-7.781513, -3.140037, 0), App.Vector(0, 0, 1), 1.15),  # 4
    Part.Circle(App.Vector(-7.781513, -3.140037, 0), App.Vector(0, 0, 1), 0.940139),  # 5
    Part.Circle(App.Vector(-8.71, -5.83, 0), App.Vector(0, 0, 1), 1.5),  # 6
    Part.Circle(App.Vector(-8.71, -5.83, 0), App.Vector(0, 0, 1), 1.237971),  # 7
], False)
sketch18.addConstraint([
    Sketcher.Constraint("Coincident", 1, 3, 0, 3),
    Sketcher.Constraint("Coincident", 3, 3, 2, 3),
    Sketcher.Constraint("Coincident", 5, 3, 4, 3),
    Sketcher.Constraint("Coincident", 7, 3, 6, 3),
    Sketcher.Constraint("Equal", 2, 4),
    Sketcher.Constraint("Equal", 3, 5),
    Sketcher.Constraint("Equal", 0, 6),
    Sketcher.Constraint("Equal", 1, 7),
    Sketcher.Constraint("Symmetric", 2, 3, 4, 3, -2),
    Sketcher.Constraint("Symmetric", 0, 3, 6, 3, -2),
    Sketcher.Constraint("Diameter", 0, 3.0),
    Sketcher.Constraint("Diameter", 2, 2.3),
    Sketcher.Constraint("DistanceX", -1, 1, 0, 3, 8.71),
    Sketcher.Constraint("DistanceY", 0, 3, -1, 1, 5.83),
    Sketcher.Constraint("Diameter", 1, 2.475942),
    Sketcher.Constraint("Diameter", 3, 1.880277),
    Sketcher.Constraint("DistanceX", -1, 1, 2, 3, 7.781513),
    Sketcher.Constraint("DistanceY", 2, 3, -1, 1, 3.140037),
])
pad13 = body.newObject("PartDesign::Pad", "Pad012")
pad13.Profile = sketch18
pad13.Length = 8

# Sketch on YZ plane
sketch19 = body.newObject("Sketcher::SketchObject", "Sketch018")
sketch19.AttachmentSupport = (doc.getObject("YZ_Plane"), [""])
sketch19.MapMode = "FlatFace"
sketch19.AttachmentOffset = App.Placement(App.Vector(0, 0, -7.920002), App.Rotation())
sketch19.addGeometry([
    Part.Circle(App.Vector(9.081391, -17.52645, 0), App.Vector(0, 0, 1), 0.8),  # 0
    Part.Circle(App.Vector(9.081391, -17.52645, 0), App.Vector(0, 0, 1), 0.5),  # 1
    Part.Circle(App.Vector(8.592263, -31.797804, 0), App.Vector(0, 0, 1), 0.8),  # 2
    Part.Circle(App.Vector(8.592263, -31.797804, 0), App.Vector(0, 0, 1), 0.5),  # 3
    Part.Circle(App.Vector(-8.592263, -31.797804, 0), App.Vector(0, 0, 1), 0.8),  # 4
    Part.Circle(App.Vector(-8.592263, -31.797804, 0), App.Vector(0, 0, 1), 0.5),  # 5
    Part.Circle(App.Vector(-9.081391, -17.52645, 0), App.Vector(0, 0, 1), 0.8),  # 6
    Part.Circle(App.Vector(-9.081391, -17.52645, 0), App.Vector(0, 0, 1), 0.5),  # 7
], False)
sketch19.addConstraint([
    Sketcher.Constraint("Coincident", 1, 3, 0, 3),
    Sketcher.Constraint("Coincident", 3, 3, 2, 3),
    Sketcher.Constraint("Coincident", 5, 3, 4, 3),
    Sketcher.Constraint("Coincident", 7, 3, 6, 3),
    Sketcher.Constraint("Equal", 0, 2),
    Sketcher.Constraint("Equal", 1, 3),
    Sketcher.Constraint("Equal", 2, 4),
    Sketcher.Constraint("Equal", 3, 5),
    Sketcher.Constraint("Equal", 4, 6),
    Sketcher.Constraint("Equal", 5, 7),
    Sketcher.Constraint("Symmetric", 2, 3, 4, 3, -2),
    Sketcher.Constraint("Symmetric", 0, 3, 6, 3, -2),
    Sketcher.Constraint("Diameter", 1, 1.0),
    Sketcher.Constraint("Diameter", 0, 1.6),
    Sketcher.Constraint("DistanceX", -1, 1, 0, 3, 9.081391),
    Sketcher.Constraint("DistanceY", 0, 3, -1, 1, 17.52645),
    Sketcher.Constraint("DistanceX", -1, 1, 2, 3, 8.592263),
    Sketcher.Constraint("DistanceY", 2, 3, -1, 1, 31.797804),
])
pad14 = body.newObject("PartDesign::Pad", "Pad013")
pad14.Profile = sketch19
pad14.Length = 8
body2 = doc.addObject("PartDesign::Body", "Body001")
doc.recompute()

body2.BaseFeature = body
doc.recompute()

mirroring = doc.addObject("Part::Mirroring", "Mirroring")
mirroring.Source = body
mirroring.Base = App.Vector(0, 0, 0)
mirroring.Normal = App.Vector(1, 0, 0)
body3 = doc.addObject("PartDesign::Body", "Body002")
body3.BaseFeature = mirroring
boolean = body2.newObject("PartDesign::Boolean", "Boolean")
boolean.Type = "Fuse"
boolean.addObjects([body3])
doc.recompute()

fillet2 = body2.newObject("PartDesign::Fillet", "Fillet001")
fillet2.Base = (boolean, edges_at(boolean, [
    (-8.92, 0.031, -37),
    (-8.92, -11.053, -16),
    (-8.92, 11.115, -16),
    (-8.92, 9.651, -35.536),
    (-8.92, -9.588, -35.536),
    (8.92, 0.031, -37),
    (8.92, 11.115, -16),
    (8.92, -11.053, -16),
    (8.92, -9.588, -35.536),
    (8.92, 9.651, -35.536),
]))
fillet2.Radius = 0.5
mirroring.Visibility = False

doc.recompute()
